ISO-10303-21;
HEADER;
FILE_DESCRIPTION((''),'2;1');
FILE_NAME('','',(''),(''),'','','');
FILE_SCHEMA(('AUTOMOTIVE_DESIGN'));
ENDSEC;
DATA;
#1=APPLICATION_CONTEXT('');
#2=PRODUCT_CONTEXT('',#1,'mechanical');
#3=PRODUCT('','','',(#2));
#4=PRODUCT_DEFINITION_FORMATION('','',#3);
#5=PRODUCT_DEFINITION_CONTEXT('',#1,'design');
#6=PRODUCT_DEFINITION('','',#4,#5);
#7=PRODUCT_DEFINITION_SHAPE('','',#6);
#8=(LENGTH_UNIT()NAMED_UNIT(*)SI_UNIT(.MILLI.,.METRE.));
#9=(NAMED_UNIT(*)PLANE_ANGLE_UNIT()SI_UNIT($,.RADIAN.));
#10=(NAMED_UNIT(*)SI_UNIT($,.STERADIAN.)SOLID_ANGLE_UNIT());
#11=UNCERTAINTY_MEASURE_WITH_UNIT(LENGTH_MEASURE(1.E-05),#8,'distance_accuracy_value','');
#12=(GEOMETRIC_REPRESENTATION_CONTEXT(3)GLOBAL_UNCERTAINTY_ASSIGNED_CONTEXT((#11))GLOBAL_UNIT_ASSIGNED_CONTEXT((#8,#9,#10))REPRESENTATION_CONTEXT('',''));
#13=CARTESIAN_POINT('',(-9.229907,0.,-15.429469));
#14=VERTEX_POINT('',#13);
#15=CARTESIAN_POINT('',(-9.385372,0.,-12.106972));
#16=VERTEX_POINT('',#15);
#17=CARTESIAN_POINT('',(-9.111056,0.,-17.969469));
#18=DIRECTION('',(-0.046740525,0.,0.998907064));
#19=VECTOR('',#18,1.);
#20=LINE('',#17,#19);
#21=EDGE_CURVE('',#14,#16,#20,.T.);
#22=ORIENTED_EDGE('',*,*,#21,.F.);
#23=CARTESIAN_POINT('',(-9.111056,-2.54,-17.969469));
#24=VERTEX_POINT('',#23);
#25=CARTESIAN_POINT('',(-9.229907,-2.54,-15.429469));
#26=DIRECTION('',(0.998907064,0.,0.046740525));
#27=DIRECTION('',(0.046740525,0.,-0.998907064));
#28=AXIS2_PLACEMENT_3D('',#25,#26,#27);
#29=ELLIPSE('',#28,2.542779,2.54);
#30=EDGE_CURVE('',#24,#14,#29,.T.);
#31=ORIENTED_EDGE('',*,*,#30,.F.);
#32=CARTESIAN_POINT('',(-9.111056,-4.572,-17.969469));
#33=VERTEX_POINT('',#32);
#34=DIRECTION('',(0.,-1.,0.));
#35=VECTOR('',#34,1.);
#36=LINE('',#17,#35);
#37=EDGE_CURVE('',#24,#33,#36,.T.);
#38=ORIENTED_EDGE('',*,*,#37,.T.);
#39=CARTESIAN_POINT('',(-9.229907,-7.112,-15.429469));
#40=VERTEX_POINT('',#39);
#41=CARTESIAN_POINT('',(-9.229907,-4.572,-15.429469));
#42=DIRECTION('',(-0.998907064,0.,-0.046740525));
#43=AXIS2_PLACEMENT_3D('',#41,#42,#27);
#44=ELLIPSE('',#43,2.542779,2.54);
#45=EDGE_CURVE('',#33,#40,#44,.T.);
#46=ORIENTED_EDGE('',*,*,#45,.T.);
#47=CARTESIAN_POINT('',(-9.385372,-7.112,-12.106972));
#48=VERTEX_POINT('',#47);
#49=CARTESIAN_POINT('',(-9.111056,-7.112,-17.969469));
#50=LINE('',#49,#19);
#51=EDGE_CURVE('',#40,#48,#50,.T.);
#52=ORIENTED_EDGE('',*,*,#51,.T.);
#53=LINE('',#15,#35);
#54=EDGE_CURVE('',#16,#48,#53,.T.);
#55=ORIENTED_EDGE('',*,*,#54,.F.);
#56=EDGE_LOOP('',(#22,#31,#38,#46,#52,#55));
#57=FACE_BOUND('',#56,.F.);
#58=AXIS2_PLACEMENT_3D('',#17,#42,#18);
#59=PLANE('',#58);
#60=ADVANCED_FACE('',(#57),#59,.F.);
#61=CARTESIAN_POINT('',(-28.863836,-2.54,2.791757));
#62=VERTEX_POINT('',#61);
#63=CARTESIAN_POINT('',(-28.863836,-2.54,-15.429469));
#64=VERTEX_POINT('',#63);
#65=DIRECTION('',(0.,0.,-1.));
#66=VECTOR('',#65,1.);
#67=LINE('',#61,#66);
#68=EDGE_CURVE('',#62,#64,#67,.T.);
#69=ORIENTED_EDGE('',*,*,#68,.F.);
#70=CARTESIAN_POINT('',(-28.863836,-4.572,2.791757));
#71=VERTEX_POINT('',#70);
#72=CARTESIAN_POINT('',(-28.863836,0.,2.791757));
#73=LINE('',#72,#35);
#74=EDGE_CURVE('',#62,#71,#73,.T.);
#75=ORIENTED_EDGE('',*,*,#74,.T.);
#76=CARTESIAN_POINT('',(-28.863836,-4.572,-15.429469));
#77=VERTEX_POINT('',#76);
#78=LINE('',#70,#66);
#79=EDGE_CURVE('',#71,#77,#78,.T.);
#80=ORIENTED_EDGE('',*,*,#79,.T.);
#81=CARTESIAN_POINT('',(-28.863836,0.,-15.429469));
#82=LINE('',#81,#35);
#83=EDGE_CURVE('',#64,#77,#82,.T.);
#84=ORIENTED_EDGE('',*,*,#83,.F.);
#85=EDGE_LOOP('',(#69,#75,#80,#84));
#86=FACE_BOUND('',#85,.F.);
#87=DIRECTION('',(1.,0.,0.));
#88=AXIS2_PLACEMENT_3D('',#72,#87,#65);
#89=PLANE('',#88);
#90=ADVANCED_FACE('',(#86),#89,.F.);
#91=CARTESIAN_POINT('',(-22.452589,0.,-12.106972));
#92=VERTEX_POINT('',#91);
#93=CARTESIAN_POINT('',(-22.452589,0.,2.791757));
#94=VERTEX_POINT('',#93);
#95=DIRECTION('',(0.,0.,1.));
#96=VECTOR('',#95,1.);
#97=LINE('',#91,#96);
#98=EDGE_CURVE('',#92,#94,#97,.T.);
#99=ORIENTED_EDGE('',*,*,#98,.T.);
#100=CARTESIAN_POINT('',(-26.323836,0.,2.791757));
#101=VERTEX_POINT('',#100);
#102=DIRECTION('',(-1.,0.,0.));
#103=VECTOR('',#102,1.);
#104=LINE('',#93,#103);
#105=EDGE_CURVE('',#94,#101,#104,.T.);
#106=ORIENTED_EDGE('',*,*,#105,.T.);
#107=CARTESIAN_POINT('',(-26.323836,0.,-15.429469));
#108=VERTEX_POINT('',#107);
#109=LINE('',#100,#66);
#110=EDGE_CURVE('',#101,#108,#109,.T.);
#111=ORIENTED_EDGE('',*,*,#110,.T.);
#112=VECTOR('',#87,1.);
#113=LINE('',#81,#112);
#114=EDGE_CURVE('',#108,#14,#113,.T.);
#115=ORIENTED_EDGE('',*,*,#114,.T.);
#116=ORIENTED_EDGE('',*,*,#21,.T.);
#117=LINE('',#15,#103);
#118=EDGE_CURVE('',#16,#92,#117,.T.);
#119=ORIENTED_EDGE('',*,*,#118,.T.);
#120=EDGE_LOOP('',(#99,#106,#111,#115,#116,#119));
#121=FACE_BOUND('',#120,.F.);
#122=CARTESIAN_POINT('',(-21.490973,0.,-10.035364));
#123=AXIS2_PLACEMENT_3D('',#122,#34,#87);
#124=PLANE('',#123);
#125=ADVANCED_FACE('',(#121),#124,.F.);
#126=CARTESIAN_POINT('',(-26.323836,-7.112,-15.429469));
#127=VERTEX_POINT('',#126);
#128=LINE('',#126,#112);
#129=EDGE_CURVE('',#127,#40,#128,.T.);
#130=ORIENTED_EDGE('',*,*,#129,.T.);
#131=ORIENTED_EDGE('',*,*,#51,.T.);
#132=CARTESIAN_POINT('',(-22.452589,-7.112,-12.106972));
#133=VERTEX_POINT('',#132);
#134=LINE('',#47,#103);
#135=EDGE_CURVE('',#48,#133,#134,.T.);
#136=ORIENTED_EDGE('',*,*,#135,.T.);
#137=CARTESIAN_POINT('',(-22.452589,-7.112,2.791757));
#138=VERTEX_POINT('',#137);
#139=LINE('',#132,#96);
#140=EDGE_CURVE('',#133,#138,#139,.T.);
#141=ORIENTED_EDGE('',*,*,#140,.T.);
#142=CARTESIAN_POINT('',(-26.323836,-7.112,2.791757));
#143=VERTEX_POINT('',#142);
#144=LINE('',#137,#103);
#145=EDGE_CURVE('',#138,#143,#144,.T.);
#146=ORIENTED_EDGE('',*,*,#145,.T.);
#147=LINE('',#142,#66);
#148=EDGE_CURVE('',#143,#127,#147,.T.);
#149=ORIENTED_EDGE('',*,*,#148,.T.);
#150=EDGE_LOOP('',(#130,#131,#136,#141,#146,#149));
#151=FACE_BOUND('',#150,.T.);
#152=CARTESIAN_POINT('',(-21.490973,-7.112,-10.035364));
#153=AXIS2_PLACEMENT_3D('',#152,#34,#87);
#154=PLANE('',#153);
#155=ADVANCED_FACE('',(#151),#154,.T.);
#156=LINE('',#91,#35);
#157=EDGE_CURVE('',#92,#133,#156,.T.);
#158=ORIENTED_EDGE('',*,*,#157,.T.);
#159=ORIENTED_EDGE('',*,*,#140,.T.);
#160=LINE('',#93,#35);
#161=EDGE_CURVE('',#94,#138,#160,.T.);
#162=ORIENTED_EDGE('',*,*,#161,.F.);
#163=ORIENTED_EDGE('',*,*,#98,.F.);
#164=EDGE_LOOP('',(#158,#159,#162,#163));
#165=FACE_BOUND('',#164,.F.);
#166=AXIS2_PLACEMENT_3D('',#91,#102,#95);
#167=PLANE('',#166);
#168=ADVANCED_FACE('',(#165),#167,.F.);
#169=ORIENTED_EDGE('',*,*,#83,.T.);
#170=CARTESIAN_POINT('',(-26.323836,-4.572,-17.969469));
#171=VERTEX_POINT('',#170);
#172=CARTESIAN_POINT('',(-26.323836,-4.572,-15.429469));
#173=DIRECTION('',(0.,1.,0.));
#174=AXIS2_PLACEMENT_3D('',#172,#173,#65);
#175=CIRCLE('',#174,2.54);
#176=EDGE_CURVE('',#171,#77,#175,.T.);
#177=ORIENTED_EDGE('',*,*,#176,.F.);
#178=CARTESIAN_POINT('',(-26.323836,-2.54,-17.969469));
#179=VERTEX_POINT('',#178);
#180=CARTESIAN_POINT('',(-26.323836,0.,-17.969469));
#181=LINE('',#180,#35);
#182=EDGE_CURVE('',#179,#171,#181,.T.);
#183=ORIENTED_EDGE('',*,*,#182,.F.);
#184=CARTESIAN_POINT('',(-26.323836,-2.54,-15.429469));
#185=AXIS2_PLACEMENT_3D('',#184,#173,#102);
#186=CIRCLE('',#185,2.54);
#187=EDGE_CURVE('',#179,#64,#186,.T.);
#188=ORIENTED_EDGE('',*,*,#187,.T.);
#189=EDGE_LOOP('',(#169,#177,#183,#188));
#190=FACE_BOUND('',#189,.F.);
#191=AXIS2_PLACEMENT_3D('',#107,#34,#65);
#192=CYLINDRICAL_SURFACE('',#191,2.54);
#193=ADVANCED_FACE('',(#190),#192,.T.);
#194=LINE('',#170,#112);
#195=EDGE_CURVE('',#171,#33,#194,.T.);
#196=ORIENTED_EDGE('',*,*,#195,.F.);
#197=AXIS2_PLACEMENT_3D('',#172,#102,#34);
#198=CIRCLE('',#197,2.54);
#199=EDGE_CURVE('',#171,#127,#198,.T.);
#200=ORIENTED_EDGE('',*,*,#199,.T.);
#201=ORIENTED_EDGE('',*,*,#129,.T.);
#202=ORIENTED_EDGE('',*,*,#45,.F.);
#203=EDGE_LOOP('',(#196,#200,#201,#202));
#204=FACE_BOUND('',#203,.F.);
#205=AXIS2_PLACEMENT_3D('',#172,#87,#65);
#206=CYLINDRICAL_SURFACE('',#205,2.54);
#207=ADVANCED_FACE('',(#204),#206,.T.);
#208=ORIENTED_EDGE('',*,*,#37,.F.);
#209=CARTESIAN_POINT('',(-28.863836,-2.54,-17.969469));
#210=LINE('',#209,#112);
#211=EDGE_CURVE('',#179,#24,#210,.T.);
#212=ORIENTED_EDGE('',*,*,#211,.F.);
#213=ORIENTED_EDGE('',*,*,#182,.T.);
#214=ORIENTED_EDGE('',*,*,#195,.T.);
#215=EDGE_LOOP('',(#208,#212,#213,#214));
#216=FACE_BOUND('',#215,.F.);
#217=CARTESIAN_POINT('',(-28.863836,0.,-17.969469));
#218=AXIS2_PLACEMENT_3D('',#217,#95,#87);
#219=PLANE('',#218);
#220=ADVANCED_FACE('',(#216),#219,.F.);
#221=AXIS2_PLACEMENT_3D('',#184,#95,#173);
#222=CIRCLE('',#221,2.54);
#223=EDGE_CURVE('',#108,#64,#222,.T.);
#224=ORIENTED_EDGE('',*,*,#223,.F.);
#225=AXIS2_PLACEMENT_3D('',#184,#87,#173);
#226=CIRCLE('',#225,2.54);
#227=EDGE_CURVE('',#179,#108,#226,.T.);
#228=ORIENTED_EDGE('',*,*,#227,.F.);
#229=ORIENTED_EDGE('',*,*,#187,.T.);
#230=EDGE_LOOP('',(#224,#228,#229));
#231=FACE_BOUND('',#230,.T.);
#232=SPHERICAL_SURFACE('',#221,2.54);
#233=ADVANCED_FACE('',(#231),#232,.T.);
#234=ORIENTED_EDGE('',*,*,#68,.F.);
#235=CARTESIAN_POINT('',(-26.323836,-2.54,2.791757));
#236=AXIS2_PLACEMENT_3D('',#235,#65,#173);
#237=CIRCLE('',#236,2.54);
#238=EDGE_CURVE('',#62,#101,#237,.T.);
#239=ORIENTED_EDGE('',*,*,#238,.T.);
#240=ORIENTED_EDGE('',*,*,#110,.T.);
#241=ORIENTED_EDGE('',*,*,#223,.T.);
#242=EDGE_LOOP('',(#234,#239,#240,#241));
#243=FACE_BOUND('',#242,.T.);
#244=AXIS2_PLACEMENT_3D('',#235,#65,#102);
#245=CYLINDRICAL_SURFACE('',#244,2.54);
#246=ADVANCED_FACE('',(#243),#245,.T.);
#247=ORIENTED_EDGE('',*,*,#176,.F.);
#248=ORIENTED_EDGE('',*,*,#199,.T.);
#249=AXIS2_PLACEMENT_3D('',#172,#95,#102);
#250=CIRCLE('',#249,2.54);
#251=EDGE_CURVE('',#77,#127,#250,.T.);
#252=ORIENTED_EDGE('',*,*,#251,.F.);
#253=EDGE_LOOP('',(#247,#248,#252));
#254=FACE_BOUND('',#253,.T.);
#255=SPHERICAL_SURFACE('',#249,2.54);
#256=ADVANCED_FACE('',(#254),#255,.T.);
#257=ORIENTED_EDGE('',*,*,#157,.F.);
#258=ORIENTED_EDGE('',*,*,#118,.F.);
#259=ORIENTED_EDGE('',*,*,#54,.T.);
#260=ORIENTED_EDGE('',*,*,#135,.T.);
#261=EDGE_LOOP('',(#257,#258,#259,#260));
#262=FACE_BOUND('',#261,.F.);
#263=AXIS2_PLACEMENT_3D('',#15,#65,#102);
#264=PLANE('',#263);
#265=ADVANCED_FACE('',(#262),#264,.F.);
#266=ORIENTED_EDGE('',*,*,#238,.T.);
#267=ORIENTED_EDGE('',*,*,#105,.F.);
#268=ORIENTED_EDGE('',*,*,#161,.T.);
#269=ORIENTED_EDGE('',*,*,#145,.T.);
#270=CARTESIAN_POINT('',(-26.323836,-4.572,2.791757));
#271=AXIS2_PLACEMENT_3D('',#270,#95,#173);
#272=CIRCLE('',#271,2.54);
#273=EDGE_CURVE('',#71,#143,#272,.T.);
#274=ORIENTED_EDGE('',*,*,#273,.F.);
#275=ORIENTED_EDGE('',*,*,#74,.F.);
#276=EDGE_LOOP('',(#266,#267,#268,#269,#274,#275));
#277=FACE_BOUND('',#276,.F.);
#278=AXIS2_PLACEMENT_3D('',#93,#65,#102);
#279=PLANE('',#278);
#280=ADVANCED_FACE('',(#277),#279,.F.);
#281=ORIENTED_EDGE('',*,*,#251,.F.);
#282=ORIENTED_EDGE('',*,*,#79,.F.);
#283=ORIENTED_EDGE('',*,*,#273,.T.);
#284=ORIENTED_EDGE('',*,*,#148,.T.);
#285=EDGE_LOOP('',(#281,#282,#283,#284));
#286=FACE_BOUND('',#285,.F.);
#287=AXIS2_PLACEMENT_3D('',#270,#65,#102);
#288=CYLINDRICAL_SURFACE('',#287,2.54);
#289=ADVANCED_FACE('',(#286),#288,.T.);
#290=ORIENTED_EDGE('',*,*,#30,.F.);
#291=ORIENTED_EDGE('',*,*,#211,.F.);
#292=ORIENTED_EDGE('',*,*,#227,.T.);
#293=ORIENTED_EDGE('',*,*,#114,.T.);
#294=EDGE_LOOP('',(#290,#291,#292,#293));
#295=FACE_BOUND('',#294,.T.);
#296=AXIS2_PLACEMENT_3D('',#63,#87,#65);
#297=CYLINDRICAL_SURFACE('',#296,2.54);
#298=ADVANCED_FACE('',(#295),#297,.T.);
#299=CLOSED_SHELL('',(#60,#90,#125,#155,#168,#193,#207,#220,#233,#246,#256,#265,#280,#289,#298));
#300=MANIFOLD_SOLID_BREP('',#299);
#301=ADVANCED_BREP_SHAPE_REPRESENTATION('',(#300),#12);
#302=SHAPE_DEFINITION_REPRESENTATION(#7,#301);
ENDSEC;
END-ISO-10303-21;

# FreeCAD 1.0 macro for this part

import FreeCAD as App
import Part
import Sketcher
Q = App.Units.Quantity


def edges_at(feature, points):
    """Names of the edges that pass closest to the given points."""
    edges = feature.Shape.Edges
    near = lambda p: min(range(len(edges)), key=lambda i: edges[i].distToShape(Part.Vertex(*p))[0])
    return sorted({f"Edge{near(p) + 1}" for p in points})

doc = App.newDocument("Part")
body = doc.addObject("PartDesign::Body", "Body")

sketch1 = body.newObject("Sketcher::SketchObject", "Sketch")
sketch1.AttachmentSupport = (doc.getObject("XZ_Plane"), [""])
sketch1.MapMode = "FlatFace"
sketch1.addGeometry(Part.LineSegment(App.Vector(-29, -18, 0), App.Vector(-9, -18, 0)), False)
sketch1.addGeometry(Part.LineSegment(App.Vector(-9, -18, 0), App.Vector(-9, -12, 0)), False)
sketch1.addGeometry(Part.LineSegment(App.Vector(-9, -12, 0), App.Vector(-22, -12, 0)), False)
sketch1.addGeometry(Part.LineSegment(App.Vector(-22, -12, 0), App.Vector(-22, 3, 0)), False)
sketch1.addGeometry(Part.LineSegment(App.Vector(-22, 3, 0), App.Vector(-29, 3, 0)), False)
sketch1.addGeometry(Part.LineSegment(App.Vector(-29, 3, 0), App.Vector(-29, -18, 0)), False)
sketch1.addConstraint(Sketcher.Constraint("Coincident", 0, 2, 1, 1))
sketch1.addConstraint(Sketcher.Constraint("Coincident", 1, 2, 2, 1))
sketch1.addConstraint(Sketcher.Constraint("Coincident", 2, 2, 3, 1))
sketch1.addConstraint(Sketcher.Constraint("Coincident", 3, 2, 4, 1))
sketch1.addConstraint(Sketcher.Constraint("Coincident", 4, 2, 5, 1))
sketch1.addConstraint(Sketcher.Constraint("Coincident", 5, 2, 0, 1))
sketch1.addConstraint(Sketcher.Constraint("Horizontal", 0))
sketch1.addConstraint(Sketcher.Constraint("Horizontal", 2))
sketch1.addConstraint(Sketcher.Constraint("Vertical", 3))
sketch1.addConstraint(Sketcher.Constraint("Horizontal", 4))
sketch1.addConstraint(Sketcher.Constraint("Vertical", 5))
sketch1.addConstraint(Sketcher.Constraint("DistanceX", 1, 2, 0, 2, Q("0.0107998 in")))
sketch1.addConstraint(Sketcher.Constraint("DistanceX", 0, 1, 0, 2, Q("19.75278 mm")))
sketch1.addConstraint(Sketcher.Constraint("DistanceY", 3, 1, 3, 2, Q("14.898729 mm")))
sketch1.addConstraint(Sketcher.Constraint("Distance", 1, Q("5.868911 mm")))
sketch1.addConstraint(Sketcher.Constraint("DistanceX", 2, 2, 2, 1, Q("13.067217 mm")))
sketch1.addConstraint(Sketcher.Constraint("DistanceY", 0, 2, -1, 1, Q("17.969469 mm")))
sketch1.addConstraint(Sketcher.Constraint("DistanceX", 2, 2, -1, 1, Q("22.452589 mm")))
pad1 = body.newObject("PartDesign::Pad", "Pad")
pad1.Profile = sketch1
pad1.Length = Q("0.28 in")
doc.recompute()

fillet = body.newObject("PartDesign::Fillet", "Fillet")
fillet.Base = (pad1, edges_at(pad1, [(-28.864, -7.112, -7.589)]))
fillet.Radius = Q("0.1 in")
doc.recompute()

fillet2 = body.newObject("PartDesign::Fillet", "Fillet001")
fillet2.Base = (fillet, edges_at(fillet, [(-28.864, 0, -7.589), (-18.987, 0, -17.969), (-17.717, -7.112, -17.969)]))
fillet2.Radius = Q("0.1 in")

doc.recompute()
